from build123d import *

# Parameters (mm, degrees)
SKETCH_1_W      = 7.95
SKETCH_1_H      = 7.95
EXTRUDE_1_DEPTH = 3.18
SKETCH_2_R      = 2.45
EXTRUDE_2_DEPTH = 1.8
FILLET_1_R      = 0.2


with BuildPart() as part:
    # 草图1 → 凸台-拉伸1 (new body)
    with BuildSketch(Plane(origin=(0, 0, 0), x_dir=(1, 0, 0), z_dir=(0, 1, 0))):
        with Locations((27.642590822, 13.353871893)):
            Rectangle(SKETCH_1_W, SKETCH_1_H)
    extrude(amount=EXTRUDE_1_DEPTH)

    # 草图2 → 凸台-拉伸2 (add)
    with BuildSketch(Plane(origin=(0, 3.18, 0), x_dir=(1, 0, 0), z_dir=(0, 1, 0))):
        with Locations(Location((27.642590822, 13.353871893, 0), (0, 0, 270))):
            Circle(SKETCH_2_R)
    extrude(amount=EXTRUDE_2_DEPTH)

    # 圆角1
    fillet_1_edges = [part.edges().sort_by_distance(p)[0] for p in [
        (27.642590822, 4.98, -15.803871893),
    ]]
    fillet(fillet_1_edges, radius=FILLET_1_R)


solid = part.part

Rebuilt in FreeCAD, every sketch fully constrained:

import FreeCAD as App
import Part
import Sketcher
from FreeCAD import Vector
Q = App.Units.Quantity


def edges_at(feature, points):
    """Names of the edges that pass closest to the given points."""
    edges = feature.Shape.Edges
    near = lambda p: min(range(len(edges)), key=lambda i: edges[i].distToShape(Part.Vertex(*p))[0])
    return sorted({f"Edge{near(p) + 1}" for p in points})

doc = App.newDocument("Part")
params = doc.addObject("Spreadsheet::Sheet", "Params")
for row, (alias, value) in enumerate([
    ("sketch1_width", "7.95 mm"),
    ("pad1_length", "3.18 mm"),
    ("sketch2_diameter", "4.9 mm"),
    ("pad2_length", "1.8 mm"),
    ("fillet_radius", "0.2 mm"),
], start=1):
    params.set(f"A{row}", alias)
    params.set(f"B{row}", "=" + value)
    params.setAlias(f"B{row}", alias)

body = doc.addObject("PartDesign::Body", "Body")

sketch1 = doc.addObject("Sketcher::SketchObject", "Sketch")
body.addObject(sketch1)
sketch1.AttachmentSupport = (doc.XZ_Plane, [""])
sketch1.MapMode = "FlatFace"
sketch1.addGeometry(Part.LineSegment(Vector(24, -17, 0), Vector(24, -9, 0)), False)
sketch1.addGeometry(Part.LineSegment(Vector(24, -9, 0), Vector(32, -9, 0)), False)
sketch1.addGeometry(Part.LineSegment(Vector(32, -9, 0), Vector(32, -17, 0)), False)
sketch1.addGeometry(Part.LineSegment(Vector(32, -17, 0), Vector(24, -17, 0)), False)
sketch1.addConstraint(Sketcher.Constraint("Coincident", 0, 2, 1, 1))
sketch1.addConstraint(Sketcher.Constraint("Coincident", 1, 2, 2, 1))
sketch1.addConstraint(Sketcher.Constraint("Coincident", 2, 2, 3, 1))
sketch1.addConstraint(Sketcher.Constraint("Coincident", 3, 2, 0, 1))
sketch1.addConstraint(Sketcher.Constraint("Vertical", 0))
sketch1.addConstraint(Sketcher.Constraint("Horizontal", 1))
sketch1.addConstraint(Sketcher.Constraint("Vertical", 2))
sketch1.addConstraint(Sketcher.Constraint("Horizontal", 3))
sketch1.addConstraint(Sketcher.Constraint("Equal", 3, 0))
sketch1.addConstraint(Sketcher.Constraint("DistanceX", 1, 1, 1, 2, Q("7.95 mm")))
sketch1.addConstraint(Sketcher.Constraint("DistanceX", -1, 1, 0, 2, Q("23.667591 mm")))
sketch1.addConstraint(Sketcher.Constraint("DistanceY", 0, 2, -1, 1, Q("9.378872 mm")))
sketch1.setExpression("Constraints[9]", "Params.sketch1_width")
pad1 = doc.addObject("PartDesign::Pad", "Pad")
body.addObject(pad1)
pad1.Profile = sketch1
pad1.setExpression("Length", "Params.pad1_length")
pad1.Reversed = True

sketch2 = doc.addObject("Sketcher::SketchObject", "Sketch001")
body.addObject(sketch2)
sketch2.AttachmentSupport = (doc.XZ_Plane, [""])
sketch2.MapMode = "FlatFace"
sketch2.AttachmentOffset = App.Placement(Vector(0, 0, -3.18), App.Rotation())
sketch2.addGeometry(Part.Circle(Vector(27.6, -13.4, 0), Vector(0, 0, 1), 2.5), False)
sketch2.addConstraint(Sketcher.Constraint("Diameter", 0, Q("4.9 mm")))
sketch2.addConstraint(Sketcher.Constraint("DistanceX", -1, 1, 0, 3, Q("27.642591 mm")))
sketch2.addConstraint(Sketcher.Constraint("DistanceY", 0, 3, -1, 1, Q("13.353872 mm")))
sketch2.setExpression("Constraints[0]", "Params.sketch2_diameter")
pad2 = doc.addObject("PartDesign::Pad", "Pad001")
body.addObject(pad2)
pad2.Profile = sketch2
pad2.setExpression("Length", "Params.pad2_length")
pad2.Reversed = True
doc.recompute()

fillet = doc.addObject("PartDesign::Fillet", "Fillet")
body.addObject(fillet)
fillet.Base = (pad2, edges_at(pad2, [(27.643, 4.98, -15.804)]))
fillet.setExpression("Radius", "Params.fillet_radius")

doc.recompute()
